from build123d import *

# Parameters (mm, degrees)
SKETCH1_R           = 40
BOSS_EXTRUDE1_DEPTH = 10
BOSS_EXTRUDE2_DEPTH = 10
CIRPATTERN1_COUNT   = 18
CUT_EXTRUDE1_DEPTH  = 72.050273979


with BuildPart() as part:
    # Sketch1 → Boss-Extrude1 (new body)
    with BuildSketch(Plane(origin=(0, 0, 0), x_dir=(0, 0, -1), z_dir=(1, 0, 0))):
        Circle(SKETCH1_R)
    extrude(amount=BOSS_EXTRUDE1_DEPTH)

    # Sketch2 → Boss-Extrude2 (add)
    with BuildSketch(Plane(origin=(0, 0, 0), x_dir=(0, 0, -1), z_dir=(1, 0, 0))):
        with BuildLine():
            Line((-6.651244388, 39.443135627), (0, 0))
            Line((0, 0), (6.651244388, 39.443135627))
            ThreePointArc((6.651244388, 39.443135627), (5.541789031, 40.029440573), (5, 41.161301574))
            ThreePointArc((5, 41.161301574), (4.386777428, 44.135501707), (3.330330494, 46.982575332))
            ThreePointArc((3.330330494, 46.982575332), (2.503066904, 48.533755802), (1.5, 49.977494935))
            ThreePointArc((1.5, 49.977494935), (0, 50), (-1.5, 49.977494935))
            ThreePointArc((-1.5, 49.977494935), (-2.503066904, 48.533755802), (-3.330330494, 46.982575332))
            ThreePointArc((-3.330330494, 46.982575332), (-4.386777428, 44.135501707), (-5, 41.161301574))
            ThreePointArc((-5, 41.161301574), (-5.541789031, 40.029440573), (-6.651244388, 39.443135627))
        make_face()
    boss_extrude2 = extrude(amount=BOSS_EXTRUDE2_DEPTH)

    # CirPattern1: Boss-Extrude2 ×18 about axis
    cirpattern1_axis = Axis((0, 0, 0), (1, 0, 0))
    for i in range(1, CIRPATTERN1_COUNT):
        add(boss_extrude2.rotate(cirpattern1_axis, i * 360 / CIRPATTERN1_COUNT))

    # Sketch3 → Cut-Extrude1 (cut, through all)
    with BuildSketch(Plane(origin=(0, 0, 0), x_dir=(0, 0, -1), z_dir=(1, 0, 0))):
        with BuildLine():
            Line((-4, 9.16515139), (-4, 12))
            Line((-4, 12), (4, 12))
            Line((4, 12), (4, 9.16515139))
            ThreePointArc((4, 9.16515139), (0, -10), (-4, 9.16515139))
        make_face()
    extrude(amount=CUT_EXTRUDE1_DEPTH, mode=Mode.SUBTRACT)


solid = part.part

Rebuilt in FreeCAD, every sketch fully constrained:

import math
import FreeCAD as App
import Part
import Sketcher
from FreeCAD import Vector

doc = App.newDocument("Part")
body = doc.addObject("PartDesign::Body", "Body")

sketch1 = doc.addObject("Sketcher::SketchObject", "Sketch")
body.addObject(sketch1)
sketch1.AttachmentSupport = (doc.YZ_Plane, [""])
sketch1.MapMode = "FlatFace"
sketch1.addGeometry(Part.Circle(Vector(0, 0, 0), Vector(0, 0, 1), 40), False)
sketch1.addConstraint([
    Sketcher.Constraint("Coincident", 0, 3, -1, 1),
    Sketcher.Constraint("Diameter", 0, 80.0),
])
pad1 = doc.addObject("PartDesign::Pad", "Pad")
body.addObject(pad1)
pad1.Profile = sketch1
pad1.Length = 10

sketch2 = doc.addObject("Sketcher::SketchObject", "Sketch001")
body.addObject(sketch2)
sketch2.AttachmentSupport = (doc.YZ_Plane, [""])
sketch2.MapMode = "FlatFace"
sketch2.addGeometry([
    Part.LineSegment(Vector(39.443136, 6.651244, 0), Vector(0, 0, 0)),
    Part.LineSegment(Vector(0, 0, 0), Vector(39.443136, -6.651244, 0)),
    Part.ArcOfCircle(Part.Circle(Vector(41.415292, -6.983807, 0), Vector(0, 0, 1), 2), math.radians(97.296003), math.radians(170.428335)),
    Part.ArcOfCircle(Part.Circle(Vector(38.621393, 14.838066, 0), Vector(0, 0, 1), 20), math.radians(-82.703997), math.radians(-65.287889)),
    Part.ArcOfCircle(Part.Circle(Vector(40.711689, 10.295967, 0), Vector(0, 0, 1), 15), math.radians(-65.287889), math.radians(-51.850143)),
    Part.ArcOfCircle(Part.Circle(Vector(0, 0, 0), Vector(0, 0, 1), 50), math.radians(-1.719131), math.radians(1.719131)),
    Part.ArcOfCircle(Part.Circle(Vector(40.711689, -10.295967, 0), Vector(0, 0, 1), 15), math.radians(51.850143), math.radians(65.287889)),
    Part.ArcOfCircle(Part.Circle(Vector(38.621393, -14.838066, 0), Vector(0, 0, 1), 20), math.radians(65.287889), math.radians(82.703997)),
    Part.ArcOfCircle(Part.Circle(Vector(41.415292, 6.983807, 0), Vector(0, 0, 1), 2), math.radians(-170.428335), math.radians(-97.296003)),
], False)
sketch2.addConstraint([
    Sketcher.Constraint("Coincident", 0, 2, 1, 1),
    Sketcher.Constraint("Coincident", 1, 2, 2, 2),
    Sketcher.Constraint("Coincident", 2, 1, 3, 1),
    Sketcher.Constraint("Coincident", 3, 2, 4, 1),
    Sketcher.Constraint("Coincident", 4, 2, 5, 1),
    Sketcher.Constraint("Coincident", 5, 2, 6, 1),
    Sketcher.Constraint("Coincident", 6, 2, 7, 1),
    Sketcher.Constraint("Coincident", 7, 2, 8, 2),
    Sketcher.Constraint("Coincident", 8, 1, 0, 1),
    Sketcher.Constraint("Coincident", 5, 3, -1, 1),
    Sketcher.Constraint("Coincident", 0, 2, -1, 1),
    Sketcher.Constraint("Radius", 2, 2.0),
    Sketcher.Constraint("Radius", 3, 20.0),
    Sketcher.Constraint("Radius", 4, 15.0),
    Sketcher.Constraint("Radius", 5, 50.0),
    Sketcher.Constraint("Radius", 6, 15.0),
    Sketcher.Constraint("Radius", 7, 20.0),
    Sketcher.Constraint("Radius", 8, 2.0),
    Sketcher.Constraint("Distance", 0, 40.0),
    Sketcher.Constraint("Distance", 1, 40.0),
    Sketcher.Constraint("DistanceY", 2, 1, -1, 1, 5.0),
    Sketcher.Constraint("DistanceY", -1, 1, 7, 2, 5.0),
    Sketcher.Constraint("DistanceY", 4, 2, 5, 2, 3.0),
    Sketcher.Constraint("DistanceY", 4, 2, -1, 1, 1.5),
    Sketcher.Constraint("DistanceX", -1, 1, 2, 1, 41.161302),
    Sketcher.Constraint("DistanceX", -1, 1, 7, 2, 41.161302),
    Sketcher.Constraint("DistanceX", 3, 3, 2, 3, 2.793899),
    Sketcher.Constraint("DistanceY", 7, 3, 6, 3, 4.542099),
    Sketcher.Constraint("DistanceY", 3, 2, -1, 1, 3.33033),
    Sketcher.Constraint("DistanceY", -1, 1, 6, 2, 3.33033),
    Sketcher.Constraint("DistanceY", 7, 3, 1, 2, 8.186822),
    Sketcher.Constraint("DistanceY", 8, 1, 3, 3, 8.186822),
])
pad2 = doc.addObject("PartDesign::Pad", "Pad001")
body.addObject(pad2)
pad2.Profile = sketch2
pad2.Length = 10
doc.recompute()

polarpattern = doc.addObject("PartDesign::PolarPattern", "PolarPattern")
body.addObject(polarpattern)
polarpattern.Originals = [pad2]
polarpattern.Axis = (doc.X_Axis, [""])
polarpattern.Angle = 360
polarpattern.Occurrences = 18
body.Tip = polarpattern

sketch3 = doc.addObject("Sketcher::SketchObject", "Sketch002")
body.addObject(sketch3)
sketch3.AttachmentSupport = (doc.YZ_Plane, [""])
sketch3.MapMode = "FlatFace"
sketch3.addGeometry([
    Part.LineSegment(Vector(12, 4, 0), Vector(9.2, 4, 0)),
    Part.ArcOfCircle(Part.Circle(Vector(0, 0, 0), Vector(0, 0, 1), 10), math.radians(24), math.radians(336)),
    Part.LineSegment(Vector(9.2, -4, 0), Vector(12, -4, 0)),
    Part.LineSegment(Vector(12, -4, 0), Vector(12, 4, 0)),
], False)
sketch3.addConstraint([
    Sketcher.Constraint("Coincident", 0, 2, 1, 1),
    Sketcher.Constraint("Coincident", 1, 2, 2, 1),
    Sketcher.Constraint("Coincident", 2, 2, 3, 1),
    Sketcher.Constraint("Coincident", 3, 2, 0, 1),
    Sketcher.Constraint("Horizontal", 0),
    Sketcher.Constraint("Horizontal", 2),
    Sketcher.Constraint("Vertical", 3),
    Sketcher.Constraint("Coincident", 1, 3, -1, 1),
    Sketcher.Constraint("Vertical", 0, 2, 1, 2),
    Sketcher.Constraint("Radius", 1, 10.0),
    Sketcher.Constraint("DistanceY", 3, 1, 3, 2, 8.0),
    Sketcher.Constraint("DistanceX", -1, 1, 2, 2, 12.0),
])
pocket1 = doc.addObject("PartDesign::Pocket", "Pocket")
body.addObject(pocket1)
pocket1.Profile = sketch3
pocket1.Type = "ThroughAll"
pocket1.Reversed = True

doc.recompute()
